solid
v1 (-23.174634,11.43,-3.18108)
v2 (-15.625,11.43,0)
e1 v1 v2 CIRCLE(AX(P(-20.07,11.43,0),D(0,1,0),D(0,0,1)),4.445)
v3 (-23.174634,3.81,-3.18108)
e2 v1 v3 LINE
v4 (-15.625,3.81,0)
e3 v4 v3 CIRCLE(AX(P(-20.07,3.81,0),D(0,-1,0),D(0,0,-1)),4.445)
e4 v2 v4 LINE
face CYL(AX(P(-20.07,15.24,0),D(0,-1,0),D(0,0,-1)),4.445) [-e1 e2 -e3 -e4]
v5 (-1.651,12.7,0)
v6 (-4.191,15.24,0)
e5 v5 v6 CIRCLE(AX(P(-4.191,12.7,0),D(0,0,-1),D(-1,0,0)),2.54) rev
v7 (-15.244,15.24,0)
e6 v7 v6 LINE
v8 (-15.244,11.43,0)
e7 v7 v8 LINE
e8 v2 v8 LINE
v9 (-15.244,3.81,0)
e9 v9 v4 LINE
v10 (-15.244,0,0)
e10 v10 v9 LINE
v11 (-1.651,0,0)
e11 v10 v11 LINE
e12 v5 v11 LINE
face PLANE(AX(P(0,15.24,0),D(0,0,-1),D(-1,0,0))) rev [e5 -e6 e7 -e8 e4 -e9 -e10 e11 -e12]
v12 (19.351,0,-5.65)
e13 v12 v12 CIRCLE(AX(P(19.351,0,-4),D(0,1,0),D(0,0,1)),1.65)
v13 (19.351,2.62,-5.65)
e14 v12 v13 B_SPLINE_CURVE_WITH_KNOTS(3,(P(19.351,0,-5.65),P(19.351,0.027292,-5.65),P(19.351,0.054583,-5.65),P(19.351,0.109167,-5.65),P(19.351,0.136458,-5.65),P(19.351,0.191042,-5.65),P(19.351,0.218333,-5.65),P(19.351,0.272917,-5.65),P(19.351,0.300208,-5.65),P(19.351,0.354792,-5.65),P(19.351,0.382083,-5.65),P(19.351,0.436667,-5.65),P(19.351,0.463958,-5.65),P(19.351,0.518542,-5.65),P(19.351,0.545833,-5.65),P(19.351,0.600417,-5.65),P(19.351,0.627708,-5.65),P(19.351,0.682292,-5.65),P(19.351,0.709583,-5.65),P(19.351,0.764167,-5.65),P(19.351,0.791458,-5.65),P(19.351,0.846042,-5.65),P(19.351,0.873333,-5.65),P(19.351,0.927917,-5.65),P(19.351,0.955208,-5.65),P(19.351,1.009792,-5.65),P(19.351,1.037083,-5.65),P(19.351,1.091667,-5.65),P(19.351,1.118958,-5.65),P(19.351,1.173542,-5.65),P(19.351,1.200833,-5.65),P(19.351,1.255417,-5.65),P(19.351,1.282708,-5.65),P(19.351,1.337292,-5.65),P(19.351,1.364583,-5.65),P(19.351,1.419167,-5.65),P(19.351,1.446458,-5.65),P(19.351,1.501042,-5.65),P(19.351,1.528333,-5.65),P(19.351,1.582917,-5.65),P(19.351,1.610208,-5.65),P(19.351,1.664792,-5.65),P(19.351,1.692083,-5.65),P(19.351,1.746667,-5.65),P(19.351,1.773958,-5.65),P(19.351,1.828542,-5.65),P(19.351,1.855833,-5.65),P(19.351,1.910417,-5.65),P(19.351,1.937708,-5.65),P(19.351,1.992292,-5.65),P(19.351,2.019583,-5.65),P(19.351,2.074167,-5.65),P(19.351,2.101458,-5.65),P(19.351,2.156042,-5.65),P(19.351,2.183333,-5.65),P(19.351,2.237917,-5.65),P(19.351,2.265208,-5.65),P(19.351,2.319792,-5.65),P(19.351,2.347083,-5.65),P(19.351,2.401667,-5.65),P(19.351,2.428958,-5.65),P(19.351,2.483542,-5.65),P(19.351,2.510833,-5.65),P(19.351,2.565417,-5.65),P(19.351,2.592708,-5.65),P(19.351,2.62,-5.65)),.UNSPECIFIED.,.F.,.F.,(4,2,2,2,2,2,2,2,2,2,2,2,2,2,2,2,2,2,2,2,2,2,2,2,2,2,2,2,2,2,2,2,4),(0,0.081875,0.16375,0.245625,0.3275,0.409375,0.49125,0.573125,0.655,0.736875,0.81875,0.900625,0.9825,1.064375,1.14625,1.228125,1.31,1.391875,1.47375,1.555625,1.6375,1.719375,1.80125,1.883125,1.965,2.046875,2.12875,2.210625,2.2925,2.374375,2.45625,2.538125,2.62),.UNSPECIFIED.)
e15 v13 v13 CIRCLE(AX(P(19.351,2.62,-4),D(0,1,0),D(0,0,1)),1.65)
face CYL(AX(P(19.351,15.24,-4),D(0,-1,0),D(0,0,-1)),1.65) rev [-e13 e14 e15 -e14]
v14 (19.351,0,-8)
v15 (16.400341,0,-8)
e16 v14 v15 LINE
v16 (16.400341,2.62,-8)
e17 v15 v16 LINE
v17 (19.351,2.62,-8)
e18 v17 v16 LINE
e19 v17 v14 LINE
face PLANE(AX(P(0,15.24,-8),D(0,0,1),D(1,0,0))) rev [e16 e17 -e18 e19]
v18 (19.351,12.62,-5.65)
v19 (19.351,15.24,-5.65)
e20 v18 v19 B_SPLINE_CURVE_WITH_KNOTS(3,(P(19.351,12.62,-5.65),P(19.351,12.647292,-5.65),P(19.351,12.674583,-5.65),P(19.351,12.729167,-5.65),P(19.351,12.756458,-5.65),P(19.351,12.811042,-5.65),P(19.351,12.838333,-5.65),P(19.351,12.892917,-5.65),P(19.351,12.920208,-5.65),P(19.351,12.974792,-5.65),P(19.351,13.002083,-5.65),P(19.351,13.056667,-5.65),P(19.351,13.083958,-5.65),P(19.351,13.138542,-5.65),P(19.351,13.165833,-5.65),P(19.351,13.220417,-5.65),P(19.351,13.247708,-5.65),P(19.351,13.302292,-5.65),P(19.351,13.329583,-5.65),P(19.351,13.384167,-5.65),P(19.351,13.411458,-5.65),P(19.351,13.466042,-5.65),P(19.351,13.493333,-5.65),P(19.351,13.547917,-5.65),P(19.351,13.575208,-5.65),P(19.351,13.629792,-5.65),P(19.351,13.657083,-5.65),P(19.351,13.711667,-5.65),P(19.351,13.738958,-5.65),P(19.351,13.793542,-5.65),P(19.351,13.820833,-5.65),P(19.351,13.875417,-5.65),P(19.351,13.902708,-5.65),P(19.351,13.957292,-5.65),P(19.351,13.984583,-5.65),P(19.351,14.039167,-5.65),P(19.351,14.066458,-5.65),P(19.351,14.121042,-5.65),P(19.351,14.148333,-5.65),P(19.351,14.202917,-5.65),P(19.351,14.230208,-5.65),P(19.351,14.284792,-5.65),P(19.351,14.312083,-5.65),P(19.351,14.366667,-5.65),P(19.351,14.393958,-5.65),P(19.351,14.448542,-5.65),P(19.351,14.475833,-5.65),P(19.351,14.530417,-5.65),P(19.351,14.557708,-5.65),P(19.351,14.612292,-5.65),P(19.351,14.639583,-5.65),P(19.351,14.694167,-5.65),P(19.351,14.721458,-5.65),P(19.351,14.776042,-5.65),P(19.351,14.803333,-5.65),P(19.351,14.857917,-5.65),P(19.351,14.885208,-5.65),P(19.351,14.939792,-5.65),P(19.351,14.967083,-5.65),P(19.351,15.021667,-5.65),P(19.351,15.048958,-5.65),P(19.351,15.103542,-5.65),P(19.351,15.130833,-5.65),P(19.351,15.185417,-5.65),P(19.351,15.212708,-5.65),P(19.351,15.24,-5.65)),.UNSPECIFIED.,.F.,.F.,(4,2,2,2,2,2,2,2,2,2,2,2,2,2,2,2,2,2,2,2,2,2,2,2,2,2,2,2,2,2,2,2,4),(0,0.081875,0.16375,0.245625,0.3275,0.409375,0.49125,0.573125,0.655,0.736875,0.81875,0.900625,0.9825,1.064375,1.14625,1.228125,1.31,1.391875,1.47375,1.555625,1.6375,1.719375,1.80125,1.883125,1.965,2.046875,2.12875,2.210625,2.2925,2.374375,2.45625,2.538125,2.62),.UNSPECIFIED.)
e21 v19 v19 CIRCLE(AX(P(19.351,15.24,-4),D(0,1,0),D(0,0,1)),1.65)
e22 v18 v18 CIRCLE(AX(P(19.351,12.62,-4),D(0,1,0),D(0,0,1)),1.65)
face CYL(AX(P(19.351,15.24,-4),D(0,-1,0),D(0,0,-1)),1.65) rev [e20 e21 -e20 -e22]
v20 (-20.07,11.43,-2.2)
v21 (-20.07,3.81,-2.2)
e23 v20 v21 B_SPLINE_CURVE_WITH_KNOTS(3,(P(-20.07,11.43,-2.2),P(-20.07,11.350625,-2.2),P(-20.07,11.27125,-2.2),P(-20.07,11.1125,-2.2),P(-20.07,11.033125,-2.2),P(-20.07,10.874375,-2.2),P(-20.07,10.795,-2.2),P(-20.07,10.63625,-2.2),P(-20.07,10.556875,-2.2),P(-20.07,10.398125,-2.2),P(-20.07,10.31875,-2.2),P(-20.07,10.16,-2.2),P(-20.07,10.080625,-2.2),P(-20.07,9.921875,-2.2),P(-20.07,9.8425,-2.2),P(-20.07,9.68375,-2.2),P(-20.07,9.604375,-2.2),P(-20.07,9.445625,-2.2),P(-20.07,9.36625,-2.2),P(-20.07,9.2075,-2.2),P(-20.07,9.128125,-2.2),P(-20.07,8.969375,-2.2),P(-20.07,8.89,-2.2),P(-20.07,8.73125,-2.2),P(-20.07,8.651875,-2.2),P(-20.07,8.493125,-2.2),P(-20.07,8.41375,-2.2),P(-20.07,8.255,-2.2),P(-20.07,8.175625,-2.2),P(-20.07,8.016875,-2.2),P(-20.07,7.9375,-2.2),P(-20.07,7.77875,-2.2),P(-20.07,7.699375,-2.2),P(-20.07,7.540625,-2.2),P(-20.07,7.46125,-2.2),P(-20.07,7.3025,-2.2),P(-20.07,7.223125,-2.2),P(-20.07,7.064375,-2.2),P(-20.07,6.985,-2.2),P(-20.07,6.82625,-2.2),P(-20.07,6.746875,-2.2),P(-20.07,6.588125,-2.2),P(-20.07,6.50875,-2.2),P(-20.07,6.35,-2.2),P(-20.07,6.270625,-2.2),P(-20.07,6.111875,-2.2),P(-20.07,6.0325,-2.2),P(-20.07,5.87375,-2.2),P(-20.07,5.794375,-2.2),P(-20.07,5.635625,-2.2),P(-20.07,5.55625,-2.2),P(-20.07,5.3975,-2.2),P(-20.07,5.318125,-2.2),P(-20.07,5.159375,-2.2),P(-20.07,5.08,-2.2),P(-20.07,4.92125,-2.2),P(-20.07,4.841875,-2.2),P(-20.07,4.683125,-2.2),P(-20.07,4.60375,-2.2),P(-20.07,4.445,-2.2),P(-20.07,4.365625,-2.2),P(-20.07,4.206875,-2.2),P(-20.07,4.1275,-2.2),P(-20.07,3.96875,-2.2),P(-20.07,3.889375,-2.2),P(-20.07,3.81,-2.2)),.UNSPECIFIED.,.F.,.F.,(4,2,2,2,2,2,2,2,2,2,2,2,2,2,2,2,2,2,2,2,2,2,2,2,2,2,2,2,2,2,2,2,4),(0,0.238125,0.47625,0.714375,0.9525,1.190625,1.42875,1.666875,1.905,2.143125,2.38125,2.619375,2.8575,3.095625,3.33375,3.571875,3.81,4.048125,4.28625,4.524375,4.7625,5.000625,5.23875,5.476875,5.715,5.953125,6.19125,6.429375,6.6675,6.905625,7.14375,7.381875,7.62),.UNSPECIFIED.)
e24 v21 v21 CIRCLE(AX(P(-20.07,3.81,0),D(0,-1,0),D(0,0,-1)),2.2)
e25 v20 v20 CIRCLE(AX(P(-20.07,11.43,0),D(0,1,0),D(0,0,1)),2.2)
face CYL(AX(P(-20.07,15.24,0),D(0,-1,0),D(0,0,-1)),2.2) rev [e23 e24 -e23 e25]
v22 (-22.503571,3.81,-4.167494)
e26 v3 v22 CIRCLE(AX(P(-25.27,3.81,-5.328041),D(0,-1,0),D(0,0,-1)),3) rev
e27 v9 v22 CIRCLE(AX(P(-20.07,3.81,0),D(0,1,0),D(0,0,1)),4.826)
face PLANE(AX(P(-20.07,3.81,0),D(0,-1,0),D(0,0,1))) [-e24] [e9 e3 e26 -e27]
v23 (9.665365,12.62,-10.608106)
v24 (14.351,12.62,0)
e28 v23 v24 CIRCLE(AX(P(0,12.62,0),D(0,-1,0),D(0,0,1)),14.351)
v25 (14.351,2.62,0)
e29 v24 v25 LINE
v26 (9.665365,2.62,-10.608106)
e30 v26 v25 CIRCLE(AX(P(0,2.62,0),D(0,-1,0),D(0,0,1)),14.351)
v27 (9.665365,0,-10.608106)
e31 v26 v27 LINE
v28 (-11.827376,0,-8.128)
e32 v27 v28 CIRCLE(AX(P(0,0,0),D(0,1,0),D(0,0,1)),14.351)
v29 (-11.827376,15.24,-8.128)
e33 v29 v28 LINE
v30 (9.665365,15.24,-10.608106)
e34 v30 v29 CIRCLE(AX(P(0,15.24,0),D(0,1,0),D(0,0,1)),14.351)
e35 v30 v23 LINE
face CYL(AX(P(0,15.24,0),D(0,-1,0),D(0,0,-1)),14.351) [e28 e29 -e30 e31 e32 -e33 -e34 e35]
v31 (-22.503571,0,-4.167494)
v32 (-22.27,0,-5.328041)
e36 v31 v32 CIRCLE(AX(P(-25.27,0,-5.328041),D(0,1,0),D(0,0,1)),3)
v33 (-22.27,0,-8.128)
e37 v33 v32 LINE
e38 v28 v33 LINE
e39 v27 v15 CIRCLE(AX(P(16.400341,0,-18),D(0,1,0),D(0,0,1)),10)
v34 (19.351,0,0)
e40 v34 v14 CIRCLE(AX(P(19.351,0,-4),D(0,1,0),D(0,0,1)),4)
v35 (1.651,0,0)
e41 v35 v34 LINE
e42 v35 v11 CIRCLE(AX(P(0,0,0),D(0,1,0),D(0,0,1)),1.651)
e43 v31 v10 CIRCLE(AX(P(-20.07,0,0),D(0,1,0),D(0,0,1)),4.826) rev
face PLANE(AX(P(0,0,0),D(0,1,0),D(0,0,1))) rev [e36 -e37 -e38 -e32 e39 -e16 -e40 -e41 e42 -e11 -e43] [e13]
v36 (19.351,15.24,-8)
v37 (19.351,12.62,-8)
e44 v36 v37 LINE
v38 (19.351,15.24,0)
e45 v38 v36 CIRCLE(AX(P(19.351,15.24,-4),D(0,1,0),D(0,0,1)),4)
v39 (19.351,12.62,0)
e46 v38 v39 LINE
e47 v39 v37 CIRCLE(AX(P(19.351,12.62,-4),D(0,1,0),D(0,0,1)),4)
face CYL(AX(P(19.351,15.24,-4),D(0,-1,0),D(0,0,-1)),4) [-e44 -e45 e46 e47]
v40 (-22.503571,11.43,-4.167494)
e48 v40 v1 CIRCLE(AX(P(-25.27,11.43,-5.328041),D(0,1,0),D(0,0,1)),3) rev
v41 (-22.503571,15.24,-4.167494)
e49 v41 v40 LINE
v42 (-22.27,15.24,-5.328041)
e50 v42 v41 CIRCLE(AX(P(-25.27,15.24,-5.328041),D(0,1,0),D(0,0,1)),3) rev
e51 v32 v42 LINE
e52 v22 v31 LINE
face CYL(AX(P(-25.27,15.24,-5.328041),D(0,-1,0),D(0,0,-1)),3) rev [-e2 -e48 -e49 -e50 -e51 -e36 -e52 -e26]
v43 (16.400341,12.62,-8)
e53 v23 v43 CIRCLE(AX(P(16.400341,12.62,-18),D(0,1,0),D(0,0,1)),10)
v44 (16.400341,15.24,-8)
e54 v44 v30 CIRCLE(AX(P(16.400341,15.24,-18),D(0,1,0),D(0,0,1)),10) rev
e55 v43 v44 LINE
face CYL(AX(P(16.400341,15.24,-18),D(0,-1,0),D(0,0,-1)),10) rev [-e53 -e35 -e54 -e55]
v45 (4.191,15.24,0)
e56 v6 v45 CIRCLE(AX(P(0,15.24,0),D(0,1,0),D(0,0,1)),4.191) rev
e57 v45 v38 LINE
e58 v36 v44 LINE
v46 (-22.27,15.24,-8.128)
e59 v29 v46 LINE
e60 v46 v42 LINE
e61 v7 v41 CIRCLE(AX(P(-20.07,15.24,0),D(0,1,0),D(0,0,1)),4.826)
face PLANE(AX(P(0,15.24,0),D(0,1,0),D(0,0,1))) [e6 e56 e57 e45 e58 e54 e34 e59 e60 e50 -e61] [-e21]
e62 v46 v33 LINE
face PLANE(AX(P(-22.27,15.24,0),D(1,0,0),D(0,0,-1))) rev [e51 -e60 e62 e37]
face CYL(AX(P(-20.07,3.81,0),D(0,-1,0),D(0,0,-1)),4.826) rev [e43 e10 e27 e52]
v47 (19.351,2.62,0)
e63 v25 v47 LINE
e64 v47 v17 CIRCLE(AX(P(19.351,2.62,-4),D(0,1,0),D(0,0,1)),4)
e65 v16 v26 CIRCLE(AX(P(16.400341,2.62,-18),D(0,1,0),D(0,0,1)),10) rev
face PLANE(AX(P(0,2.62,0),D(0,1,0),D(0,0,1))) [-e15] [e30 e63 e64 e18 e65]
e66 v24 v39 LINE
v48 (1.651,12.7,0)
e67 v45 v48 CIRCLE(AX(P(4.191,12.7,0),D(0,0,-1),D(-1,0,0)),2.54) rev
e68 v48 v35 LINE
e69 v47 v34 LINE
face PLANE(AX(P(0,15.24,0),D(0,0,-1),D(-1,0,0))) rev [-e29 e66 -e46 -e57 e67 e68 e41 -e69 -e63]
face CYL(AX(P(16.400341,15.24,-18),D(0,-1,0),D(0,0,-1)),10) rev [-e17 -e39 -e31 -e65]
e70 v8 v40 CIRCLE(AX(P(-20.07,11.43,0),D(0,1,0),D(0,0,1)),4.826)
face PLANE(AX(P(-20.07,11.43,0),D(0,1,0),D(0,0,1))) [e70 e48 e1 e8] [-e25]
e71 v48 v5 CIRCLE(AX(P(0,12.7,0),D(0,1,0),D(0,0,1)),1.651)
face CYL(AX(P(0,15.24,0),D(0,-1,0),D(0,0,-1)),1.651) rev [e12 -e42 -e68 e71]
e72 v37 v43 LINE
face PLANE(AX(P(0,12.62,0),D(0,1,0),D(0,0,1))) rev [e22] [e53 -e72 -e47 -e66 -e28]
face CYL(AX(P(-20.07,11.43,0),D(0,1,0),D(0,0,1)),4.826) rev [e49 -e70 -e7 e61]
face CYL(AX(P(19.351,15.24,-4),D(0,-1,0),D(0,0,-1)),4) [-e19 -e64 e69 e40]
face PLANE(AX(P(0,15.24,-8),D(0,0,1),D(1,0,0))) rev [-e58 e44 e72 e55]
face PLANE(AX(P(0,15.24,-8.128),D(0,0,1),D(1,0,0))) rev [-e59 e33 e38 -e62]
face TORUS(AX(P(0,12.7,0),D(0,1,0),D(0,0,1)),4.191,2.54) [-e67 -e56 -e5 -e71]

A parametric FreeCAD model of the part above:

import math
import FreeCAD as App
import Part
import Sketcher
Q = App.Units.Quantity


def edges_at(feature, points):
    """Names of the edges that pass closest to the given points."""
    edges = feature.Shape.Edges
    near = lambda p: min(range(len(edges)), key=lambda i: edges[i].distToShape(Part.Vertex(*p))[0])
    return sorted({f"Edge{near(p) + 1}" for p in points})

doc = App.newDocument("Part")
body = doc.addObject("PartDesign::Body", "Body")

# Sketch on XZ plane
sketch1 = body.newObject("Sketcher::SketchObject", "Sketch")
sketch1.AttachmentSupport = (doc.getObject("XZ_Plane"), [""])
sketch1.MapMode = "FlatFace"
sketch1.addGeometry([
    Part.LineSegment(App.Vector(-11.8, -8.1, 0), App.Vector(-22.3, -8.1, 0)),  # 0
    Part.LineSegment(App.Vector(-22.3, -8.1, 0), App.Vector(-22.3, -3.9, 0)),  # 1
    Part.ArcOfCircle(Part.Circle(App.Vector(-20.1, 0, 0), App.Vector(0, 0, 1), 4.4), math.radians(0), math.radians(240)),  # 2
    Part.LineSegment(App.Vector(-15.6, 0, 0), App.Vector(-1.7, 0, 0)),  # 3
    Part.ArcOfCircle(Part.Circle(App.Vector(0, 0, 0), App.Vector(0, 0, 1), 1.7), math.radians(180), math.radians(360)),  # 4
    Part.LineSegment(App.Vector(1.7, 0, 0), App.Vector(19.4, 0, 0)),  # 5
    Part.ArcOfCircle(Part.Circle(App.Vector(19.4, -4, 0), App.Vector(0, 0, 1), 4), math.radians(-90), math.radians(90)),  # 6
    Part.LineSegment(App.Vector(19.4, -8, 0), App.Vector(11.9, -8, 0)),  # 7
    Part.ArcOfCircle(Part.Circle(App.Vector(0, 0, 0), App.Vector(0, 0, 1), 14.4), math.radians(-146), math.radians(-34)),  # 8
    Part.Circle(App.Vector(-20.1, 0, 0), App.Vector(0, 0, 1), 2.2),  # 9
    Part.Circle(App.Vector(19.4, -4, 0), App.Vector(0, 0, 1), 1.6),  # 10
], False)
sketch1.addConstraint([
    Sketcher.Constraint("Coincident", 0, 2, 1, 1),
    Sketcher.Constraint("Coincident", 1, 2, 2, 2),
    Sketcher.Constraint("Coincident", 2, 1, 3, 1),
    Sketcher.Constraint("Coincident", 3, 2, 4, 1),
    Sketcher.Constraint("Coincident", 4, 2, 5, 1),
    Sketcher.Constraint("Tangent", 5, 2, 6, 2),
    Sketcher.Constraint("Tangent", 6, 1, 7, 1),
    Sketcher.Constraint("Coincident", 7, 2, 8, 2),
    Sketcher.Constraint("Coincident", 8, 1, 0, 1),
    Sketcher.Constraint("Horizontal", 0),
    Sketcher.Constraint("Vertical", 1),
    Sketcher.Constraint("Horizontal", 3),
    Sketcher.Constraint("Horizontal", 5),
    Sketcher.Constraint("Horizontal", 7),
    Sketcher.Constraint("Coincident", 4, 3, -1, 1),
    Sketcher.Constraint("Coincident", 8, 3, -1, 1),
    Sketcher.Constraint("Coincident", 9, 3, 2, 3),
    Sketcher.Constraint("Coincident", 10, 3, 6, 3),
    Sketcher.Constraint("PointOnObject", 2, 3, -1),
    Sketcher.Constraint("PointOnObject", 2, 1, -1),
    Sketcher.Constraint("PointOnObject", 4, 2, -1),
    Sketcher.Constraint("Radius", 6, Q("4 mm")),
    Sketcher.Constraint("Diameter", 9, Q("4.4 mm")),
    Sketcher.Constraint("Diameter", 10, Q("3.3 mm")),
    Sketcher.Constraint("DistanceX", 5, 1, 5, 2, Q("17.7 mm")),
    Sketcher.Constraint("Radius", 2, Q("4.445 mm")),
    Sketcher.Constraint("Radius", 4, Q("1.651 mm")),
    Sketcher.Constraint("Radius", 8, Q("14.351 mm")),
    Sketcher.Constraint("DistanceX", 0, 2, 2, 3, Q("2.2 mm")),
    Sketcher.Constraint("DistanceX", 3, 1, 3, 2, Q("13.974 mm")),
    Sketcher.Constraint("DistanceY", 0, 2, -1, 1, Q("8.128 mm")),
])
pad1 = body.newObject("PartDesign::Pad", "Pad")
pad1.Profile = sketch1
pad1.Length = 15.24
pad1.Reversed = True

# Sketch on XZ plane
sketch2 = body.newObject("Sketcher::SketchObject", "Sketch001")
sketch2.AttachmentSupport = (doc.getObject("XZ_Plane"), [""])
sketch2.MapMode = "FlatFace"
sketch2.AttachmentOffset = App.Placement(App.Vector(0, 0, -15.24), App.Rotation())
sketch2.addGeometry(Part.Circle(App.Vector(-20.1, 0, 0), App.Vector(0, 0, 1), 4.8), False)
sketch2.addConstraint([
    Sketcher.Constraint("PointOnObject", 0, 3, -1),
    Sketcher.Constraint("Diameter", 0, Q("9.652 mm")),
    Sketcher.Constraint("DistanceX", 0, 3, -1, 1, Q("20.07 mm")),
])
pocket1 = body.newObject("PartDesign::Pocket", "Pocket")
pocket1.Profile = sketch2
pocket1.Length = 7.62
pocket1.Midplane = True
doc.recompute()

fillet = body.newObject("PartDesign::Fillet", "Fillet")
fillet.Base = (pocket1, edges_at(pocket1, [(0, 15.24, -1.651)]))
fillet.Radius = 2.54
doc.recompute()

datumplane = body.newObject("PartDesign::Plane", "DatumPlane")
datumplane.AttachmentSupport = (doc.getObject("XZ_Plane"), [""])
datumplane.MapMode = "FlatFace"
datumplane.AttachmentOffset = App.Placement(App.Vector(0, 0, -7.62), App.Rotation())
mirrored = body.newObject("PartDesign::Mirrored", "Mirrored")
mirrored.Originals = [pocket1]
mirrored.MirrorPlane = (datumplane, [""])
body.Tip = mirrored
doc.recompute()

fillet2 = body.newObject("PartDesign::Fillet", "Fillet001")
fillet2.Base = (mirrored, edges_at(mirrored, [(-22.27, 7.62, -3.862)]))
fillet2.Radius = 3

# Sketch on XZ plane
sketch3 = body.newObject("Sketcher::SketchObject", "Sketch002")
sketch3.AttachmentSupport = (doc.getObject("XZ_Plane"), [""])
sketch3.MapMode = "FlatFace"
sketch3.AttachmentOffset = App.Placement(App.Vector(0, 0, -7.62), App.Rotation())
sketch3.addGeometry([
    Part.LineSegment(App.Vector(14.4, 0, 0), App.Vector(19.4, 0, 0)),
    Part.ArcOfCircle(Part.Circle(App.Vector(19.4, -4, 0), App.Vector(0, 0, 1), 4), math.radians(-90), math.radians(90)),
    Part.LineSegment(App.Vector(19.4, -8, 0), App.Vector(11.9, -8, 0)),
    Part.ArcOfCircle(Part.Circle(App.Vector(0, 0, 0), App.Vector(0, 0, 1), 14.4), math.radians(-34), math.radians(0)),
], False)
sketch3.addConstraint([
    Sketcher.Constraint("Tangent", 0, 2, 1, 2),
    Sketcher.Constraint("Tangent", 1, 1, 2, 1),
    Sketcher.Constraint("Coincident", 2, 2, 3, 1),
    Sketcher.Constraint("Coincident", 3, 2, 0, 1),
    Sketcher.Constraint("Horizontal", 0),
    Sketcher.Constraint("Horizontal", 2),
    Sketcher.Constraint("Coincident", 3, 3, -1, 1),
    Sketcher.Constraint("PointOnObject", 0, 2, -1),
    Sketcher.Constraint("Radius", 1, Q("4 mm")),
    Sketcher.Constraint("DistanceX", 0, 1, 0, 2, Q("5 mm")),
    Sketcher.Constraint("Radius", 3, Q("14.351 mm")),
])
pocket2 = body.newObject("PartDesign::Pocket", "Pocket001")
pocket2.Profile = sketch3
pocket2.Type = "TwoLengths"
pocket2.Length = 5
pocket2.Length2 = 5
doc.recompute()

fillet3 = body.newObject("PartDesign::Fillet", "Fillet002")
fillet3.Base = (pocket2, edges_at(pocket2, [(11.914, 13.93, -8), (11.914, 1.31, -8)]))
fillet3.Radius = 10

doc.recompute()
